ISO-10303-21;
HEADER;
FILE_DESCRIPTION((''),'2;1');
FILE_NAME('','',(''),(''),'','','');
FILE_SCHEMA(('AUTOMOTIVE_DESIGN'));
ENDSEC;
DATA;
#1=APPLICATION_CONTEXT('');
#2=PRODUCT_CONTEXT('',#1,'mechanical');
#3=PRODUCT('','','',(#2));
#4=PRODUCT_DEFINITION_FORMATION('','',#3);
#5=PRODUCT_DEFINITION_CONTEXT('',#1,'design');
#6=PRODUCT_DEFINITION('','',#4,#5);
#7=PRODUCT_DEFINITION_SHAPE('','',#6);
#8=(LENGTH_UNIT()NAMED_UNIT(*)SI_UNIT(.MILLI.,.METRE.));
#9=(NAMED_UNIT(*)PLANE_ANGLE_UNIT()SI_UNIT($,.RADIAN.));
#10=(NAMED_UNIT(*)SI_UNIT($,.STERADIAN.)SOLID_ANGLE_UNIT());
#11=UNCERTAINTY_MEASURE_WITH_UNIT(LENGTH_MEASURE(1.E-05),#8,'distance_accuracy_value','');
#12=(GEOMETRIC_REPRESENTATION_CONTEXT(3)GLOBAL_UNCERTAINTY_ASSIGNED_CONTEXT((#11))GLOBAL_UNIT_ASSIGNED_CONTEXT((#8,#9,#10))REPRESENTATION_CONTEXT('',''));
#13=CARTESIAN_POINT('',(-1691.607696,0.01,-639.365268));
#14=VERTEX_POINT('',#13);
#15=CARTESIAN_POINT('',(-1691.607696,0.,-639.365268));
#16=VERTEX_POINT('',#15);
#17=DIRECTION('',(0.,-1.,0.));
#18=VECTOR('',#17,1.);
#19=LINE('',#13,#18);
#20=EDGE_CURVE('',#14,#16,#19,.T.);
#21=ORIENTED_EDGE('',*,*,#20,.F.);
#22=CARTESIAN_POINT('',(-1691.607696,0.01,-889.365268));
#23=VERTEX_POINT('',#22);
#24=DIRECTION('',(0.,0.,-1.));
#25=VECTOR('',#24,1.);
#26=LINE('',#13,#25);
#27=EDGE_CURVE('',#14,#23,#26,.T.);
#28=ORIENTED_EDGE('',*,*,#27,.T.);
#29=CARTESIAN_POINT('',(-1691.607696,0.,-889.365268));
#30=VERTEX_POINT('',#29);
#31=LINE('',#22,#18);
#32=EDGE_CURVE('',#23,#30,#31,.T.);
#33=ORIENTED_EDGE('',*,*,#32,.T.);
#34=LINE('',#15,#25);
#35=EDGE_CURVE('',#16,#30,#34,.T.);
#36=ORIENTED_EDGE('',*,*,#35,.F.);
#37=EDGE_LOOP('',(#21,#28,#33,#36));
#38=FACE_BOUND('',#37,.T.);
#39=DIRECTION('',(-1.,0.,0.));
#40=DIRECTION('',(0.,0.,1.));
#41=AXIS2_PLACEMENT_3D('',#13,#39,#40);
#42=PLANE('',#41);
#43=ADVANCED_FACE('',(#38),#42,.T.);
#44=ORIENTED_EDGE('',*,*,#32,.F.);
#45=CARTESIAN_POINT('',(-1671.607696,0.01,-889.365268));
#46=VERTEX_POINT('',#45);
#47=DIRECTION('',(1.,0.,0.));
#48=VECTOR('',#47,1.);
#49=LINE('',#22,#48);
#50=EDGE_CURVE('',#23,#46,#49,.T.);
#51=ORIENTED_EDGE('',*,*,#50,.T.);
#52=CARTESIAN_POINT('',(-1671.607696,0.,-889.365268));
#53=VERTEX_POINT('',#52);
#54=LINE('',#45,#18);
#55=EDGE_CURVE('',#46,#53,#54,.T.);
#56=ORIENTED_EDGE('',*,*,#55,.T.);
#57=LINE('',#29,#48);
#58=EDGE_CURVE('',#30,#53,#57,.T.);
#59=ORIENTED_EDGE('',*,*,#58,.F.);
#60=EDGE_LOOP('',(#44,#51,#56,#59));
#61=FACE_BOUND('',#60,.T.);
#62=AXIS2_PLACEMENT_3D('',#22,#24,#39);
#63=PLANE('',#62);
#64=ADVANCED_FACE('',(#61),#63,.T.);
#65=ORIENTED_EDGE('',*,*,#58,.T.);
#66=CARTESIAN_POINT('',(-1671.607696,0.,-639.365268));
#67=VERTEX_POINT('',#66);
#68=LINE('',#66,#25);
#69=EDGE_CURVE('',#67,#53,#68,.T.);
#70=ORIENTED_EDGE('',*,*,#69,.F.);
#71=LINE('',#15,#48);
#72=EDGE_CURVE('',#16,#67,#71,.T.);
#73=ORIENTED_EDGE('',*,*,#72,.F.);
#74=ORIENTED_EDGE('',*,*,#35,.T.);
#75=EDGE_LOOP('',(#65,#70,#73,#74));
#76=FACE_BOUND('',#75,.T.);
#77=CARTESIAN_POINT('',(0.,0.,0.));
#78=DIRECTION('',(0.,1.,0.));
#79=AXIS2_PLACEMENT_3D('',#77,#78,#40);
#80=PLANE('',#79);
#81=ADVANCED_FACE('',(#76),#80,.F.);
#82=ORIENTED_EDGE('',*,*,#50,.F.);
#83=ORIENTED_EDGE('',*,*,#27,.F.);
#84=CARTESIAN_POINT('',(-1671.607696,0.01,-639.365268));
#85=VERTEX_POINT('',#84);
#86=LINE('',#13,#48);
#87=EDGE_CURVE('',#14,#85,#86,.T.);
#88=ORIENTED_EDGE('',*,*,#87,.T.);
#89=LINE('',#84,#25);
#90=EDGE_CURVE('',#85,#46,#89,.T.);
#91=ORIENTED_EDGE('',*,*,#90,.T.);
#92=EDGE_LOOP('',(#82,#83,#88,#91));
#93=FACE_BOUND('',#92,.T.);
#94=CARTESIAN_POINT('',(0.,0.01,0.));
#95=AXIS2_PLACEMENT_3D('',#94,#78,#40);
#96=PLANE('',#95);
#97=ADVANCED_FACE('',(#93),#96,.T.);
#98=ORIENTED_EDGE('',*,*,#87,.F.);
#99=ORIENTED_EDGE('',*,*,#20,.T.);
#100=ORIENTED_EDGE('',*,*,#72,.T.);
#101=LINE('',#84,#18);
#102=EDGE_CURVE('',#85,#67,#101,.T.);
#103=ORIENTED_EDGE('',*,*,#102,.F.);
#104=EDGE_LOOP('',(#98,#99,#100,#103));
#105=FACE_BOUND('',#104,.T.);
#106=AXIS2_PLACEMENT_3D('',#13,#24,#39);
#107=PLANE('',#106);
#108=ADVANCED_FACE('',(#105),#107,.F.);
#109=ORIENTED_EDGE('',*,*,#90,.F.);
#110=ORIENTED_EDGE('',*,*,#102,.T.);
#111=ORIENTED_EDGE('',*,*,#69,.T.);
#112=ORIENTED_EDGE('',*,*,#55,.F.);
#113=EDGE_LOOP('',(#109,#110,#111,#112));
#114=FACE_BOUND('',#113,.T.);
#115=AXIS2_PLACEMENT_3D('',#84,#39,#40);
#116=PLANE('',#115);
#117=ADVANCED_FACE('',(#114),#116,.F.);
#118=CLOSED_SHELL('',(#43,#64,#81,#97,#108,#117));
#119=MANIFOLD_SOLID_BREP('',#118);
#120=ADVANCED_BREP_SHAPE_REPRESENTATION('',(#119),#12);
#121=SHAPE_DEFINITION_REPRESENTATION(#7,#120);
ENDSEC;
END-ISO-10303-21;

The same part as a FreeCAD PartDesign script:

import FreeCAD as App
import Part
import Sketcher

doc = App.newDocument("Part")
body = doc.addObject("PartDesign::Body", "Body")

# Sketch on XZ plane
sketch1 = body.newObject("Sketcher::SketchObject", "Sketch")
sketch1.AttachmentSupport = (doc.getObject("XZ_Plane"), [""])
sketch1.MapMode = "FlatFace"
sketch1.addGeometry([
    Part.LineSegment(App.Vector(-1692, -889, 0), App.Vector(-1692, -639, 0)),
    Part.LineSegment(App.Vector(-1692, -639, 0), App.Vector(-1672, -639, 0)),
    Part.LineSegment(App.Vector(-1672, -639, 0), App.Vector(-1672, -889, 0)),
    Part.LineSegment(App.Vector(-1672, -889, 0), App.Vector(-1692, -889, 0)),
], False)
sketch1.addConstraint([
    Sketcher.Constraint("Coincident", 0, 2, 1, 1),
    Sketcher.Constraint("Coincident", 1, 2, 2, 1),
    Sketcher.Constraint("Coincident", 2, 2, 3, 1),
    Sketcher.Constraint("Coincident", 3, 2, 0, 1),
    Sketcher.Constraint("Vertical", 0),
    Sketcher.Constraint("Horizontal", 1),
    Sketcher.Constraint("Vertical", 2),
    Sketcher.Constraint("Horizontal", 3),
    Sketcher.Constraint("DistanceX", 1, 1, 1, 2, 20.0),
    Sketcher.Constraint("DistanceY", 0, 1, 0, 2, 250.0),
    Sketcher.Constraint("DistanceY", 0, 2, -1, 1, 639.365268),
    Sketcher.Constraint("DistanceX", 0, 2, -1, 1, 1691.607696),
])
pad1 = body.newObject("PartDesign::Pad", "Pad")
pad1.Profile = sketch1
pad1.Length = 0.01
pad1.Reversed = True

doc.recompute()
